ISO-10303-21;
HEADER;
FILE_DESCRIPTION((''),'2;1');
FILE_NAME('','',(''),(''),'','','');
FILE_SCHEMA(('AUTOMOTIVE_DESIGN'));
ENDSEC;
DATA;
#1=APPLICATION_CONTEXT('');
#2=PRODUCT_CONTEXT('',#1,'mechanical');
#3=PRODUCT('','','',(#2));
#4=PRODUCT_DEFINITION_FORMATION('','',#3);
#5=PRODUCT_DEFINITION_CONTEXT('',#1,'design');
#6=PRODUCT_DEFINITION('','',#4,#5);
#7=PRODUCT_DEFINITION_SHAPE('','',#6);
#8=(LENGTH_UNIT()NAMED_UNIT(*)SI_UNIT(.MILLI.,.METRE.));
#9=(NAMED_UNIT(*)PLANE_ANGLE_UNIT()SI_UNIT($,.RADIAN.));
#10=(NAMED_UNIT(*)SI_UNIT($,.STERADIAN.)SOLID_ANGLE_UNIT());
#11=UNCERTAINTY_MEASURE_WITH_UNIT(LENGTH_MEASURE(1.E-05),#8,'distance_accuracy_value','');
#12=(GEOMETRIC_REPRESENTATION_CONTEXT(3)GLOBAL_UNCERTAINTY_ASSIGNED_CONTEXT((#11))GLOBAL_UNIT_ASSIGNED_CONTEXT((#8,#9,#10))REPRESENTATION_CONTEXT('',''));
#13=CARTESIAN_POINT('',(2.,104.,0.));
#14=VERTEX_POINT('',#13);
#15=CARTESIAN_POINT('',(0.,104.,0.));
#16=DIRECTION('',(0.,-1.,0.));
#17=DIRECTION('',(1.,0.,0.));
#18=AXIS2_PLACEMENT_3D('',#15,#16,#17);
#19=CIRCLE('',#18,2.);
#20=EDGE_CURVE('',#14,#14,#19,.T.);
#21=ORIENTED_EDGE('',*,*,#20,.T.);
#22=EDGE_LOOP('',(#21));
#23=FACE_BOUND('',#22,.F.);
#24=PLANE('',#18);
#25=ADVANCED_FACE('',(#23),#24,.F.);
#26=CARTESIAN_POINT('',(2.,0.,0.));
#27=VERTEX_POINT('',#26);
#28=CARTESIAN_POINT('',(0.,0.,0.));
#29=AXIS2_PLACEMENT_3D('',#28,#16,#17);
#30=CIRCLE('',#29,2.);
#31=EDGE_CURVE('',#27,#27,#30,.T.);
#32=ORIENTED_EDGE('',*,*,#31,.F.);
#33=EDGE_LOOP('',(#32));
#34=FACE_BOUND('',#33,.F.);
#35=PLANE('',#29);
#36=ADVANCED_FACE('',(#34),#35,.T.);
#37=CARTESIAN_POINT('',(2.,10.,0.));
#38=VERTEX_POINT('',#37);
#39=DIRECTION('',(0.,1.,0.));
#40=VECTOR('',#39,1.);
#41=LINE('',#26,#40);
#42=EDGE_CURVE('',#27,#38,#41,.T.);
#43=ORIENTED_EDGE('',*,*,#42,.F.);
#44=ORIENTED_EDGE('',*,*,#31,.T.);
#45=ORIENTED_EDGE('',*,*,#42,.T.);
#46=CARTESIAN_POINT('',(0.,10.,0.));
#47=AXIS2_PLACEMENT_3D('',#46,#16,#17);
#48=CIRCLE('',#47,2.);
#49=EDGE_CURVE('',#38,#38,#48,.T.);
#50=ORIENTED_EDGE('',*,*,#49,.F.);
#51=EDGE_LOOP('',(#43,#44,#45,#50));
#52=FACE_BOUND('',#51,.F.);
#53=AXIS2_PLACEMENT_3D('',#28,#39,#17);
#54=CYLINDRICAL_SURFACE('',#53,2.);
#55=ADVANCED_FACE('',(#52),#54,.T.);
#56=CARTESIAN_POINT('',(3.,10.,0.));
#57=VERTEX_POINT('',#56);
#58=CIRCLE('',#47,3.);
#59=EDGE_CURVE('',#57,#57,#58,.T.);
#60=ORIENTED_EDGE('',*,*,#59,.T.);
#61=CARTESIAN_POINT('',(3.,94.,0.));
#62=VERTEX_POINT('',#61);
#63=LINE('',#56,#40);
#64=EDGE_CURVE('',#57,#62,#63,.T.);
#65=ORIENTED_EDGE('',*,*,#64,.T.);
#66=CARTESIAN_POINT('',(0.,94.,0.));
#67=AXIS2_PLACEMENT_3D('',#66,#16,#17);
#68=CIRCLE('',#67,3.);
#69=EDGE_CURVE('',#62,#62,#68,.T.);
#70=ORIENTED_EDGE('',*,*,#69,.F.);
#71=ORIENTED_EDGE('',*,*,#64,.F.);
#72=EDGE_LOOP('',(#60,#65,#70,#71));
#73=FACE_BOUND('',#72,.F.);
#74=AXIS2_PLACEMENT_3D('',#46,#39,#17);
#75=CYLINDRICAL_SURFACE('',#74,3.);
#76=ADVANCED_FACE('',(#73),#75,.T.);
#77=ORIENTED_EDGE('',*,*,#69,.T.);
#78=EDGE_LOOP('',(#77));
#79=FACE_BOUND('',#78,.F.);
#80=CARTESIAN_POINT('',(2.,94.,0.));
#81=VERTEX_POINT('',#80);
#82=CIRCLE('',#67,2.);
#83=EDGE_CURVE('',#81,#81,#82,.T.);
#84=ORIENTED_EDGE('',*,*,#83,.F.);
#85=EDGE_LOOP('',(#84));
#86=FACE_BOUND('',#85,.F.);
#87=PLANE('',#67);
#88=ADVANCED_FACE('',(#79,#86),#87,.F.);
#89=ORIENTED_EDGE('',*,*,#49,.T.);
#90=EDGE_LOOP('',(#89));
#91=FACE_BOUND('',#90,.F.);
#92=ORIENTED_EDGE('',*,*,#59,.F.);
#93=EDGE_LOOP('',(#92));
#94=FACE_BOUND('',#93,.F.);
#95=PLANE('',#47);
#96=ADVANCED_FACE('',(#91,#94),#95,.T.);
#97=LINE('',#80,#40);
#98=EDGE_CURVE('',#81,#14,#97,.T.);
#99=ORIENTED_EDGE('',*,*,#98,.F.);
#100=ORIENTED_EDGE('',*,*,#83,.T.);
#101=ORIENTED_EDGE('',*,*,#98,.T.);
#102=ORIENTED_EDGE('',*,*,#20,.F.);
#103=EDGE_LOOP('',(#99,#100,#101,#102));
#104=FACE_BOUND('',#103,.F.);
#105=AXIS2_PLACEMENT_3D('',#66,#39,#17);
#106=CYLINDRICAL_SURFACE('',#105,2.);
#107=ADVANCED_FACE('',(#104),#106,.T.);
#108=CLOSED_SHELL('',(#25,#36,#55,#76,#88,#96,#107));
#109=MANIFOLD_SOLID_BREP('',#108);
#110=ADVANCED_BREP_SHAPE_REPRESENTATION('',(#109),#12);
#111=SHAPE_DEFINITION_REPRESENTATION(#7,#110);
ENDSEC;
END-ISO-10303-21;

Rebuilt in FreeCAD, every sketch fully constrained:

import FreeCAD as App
import Part
import Sketcher
from FreeCAD import Vector
Q = App.Units.Quantity


def add_polygon(sketch, points):
    """Adds a closed chain of lines whose ends are joined by coincident constraints."""
    first, n = sketch.GeometryCount, len(points)
    for a, b in zip(points, points[1:] + points[:1]):
        sketch.addGeometry(Part.LineSegment(App.Vector(*a, 0), App.Vector(*b, 0)), False)
    for i in range(n):
        sketch.addConstraint(Sketcher.Constraint("Coincident", first + i, 2, first + (i + 1) % n, 1))

doc = App.newDocument("Part")
body = doc.addObject("PartDesign::Body", "Body")

# Sketch on XY plane
sketch1 = doc.addObject("Sketcher::SketchObject", "Sketch")
body.addObject(sketch1)
sketch1.AttachmentSupport = (doc.XY_Plane, [""])
sketch1.MapMode = "FlatFace"
add_polygon(sketch1, [(0, 104), (0, 0), (2, 0), (2, 10), (3, 10), (3, 94), (2, 94), (2, 104)])  # lines 0-7
sketch1.addConstraint([
    Sketcher.Constraint("Vertical", 0),
    Sketcher.Constraint("Horizontal", 1),
    Sketcher.Constraint("Vertical", 2),
    Sketcher.Constraint("Horizontal", 3),
    Sketcher.Constraint("Vertical", 4),
    Sketcher.Constraint("Horizontal", 5),
    Sketcher.Constraint("Vertical", 6),
    Sketcher.Constraint("Horizontal", 7),
    Sketcher.Constraint("Coincident", 0, 2, -1, 1),
    Sketcher.Constraint("Vertical", 2, 2, 5, 2),
    Sketcher.Constraint("Equal", 2, 6),
    Sketcher.Constraint("DistanceX", 1, 1, 1, 2, Q("2 mm")),
    Sketcher.Constraint("DistanceX", 3, 1, 3, 2, Q("1 mm")),
    Sketcher.Constraint("DistanceY", 2, 1, 2, 2, Q("10 mm")),
    Sketcher.Constraint("DistanceY", 4, 1, 4, 2, Q("84 mm")),
])
revolution = doc.addObject("PartDesign::Revolution", "Revolution")
body.addObject(revolution)
revolution.Profile = sketch1
revolution.ReferenceAxis = (sketch1, ["V_Axis"])
revolution.Angle = 360

doc.recompute()
